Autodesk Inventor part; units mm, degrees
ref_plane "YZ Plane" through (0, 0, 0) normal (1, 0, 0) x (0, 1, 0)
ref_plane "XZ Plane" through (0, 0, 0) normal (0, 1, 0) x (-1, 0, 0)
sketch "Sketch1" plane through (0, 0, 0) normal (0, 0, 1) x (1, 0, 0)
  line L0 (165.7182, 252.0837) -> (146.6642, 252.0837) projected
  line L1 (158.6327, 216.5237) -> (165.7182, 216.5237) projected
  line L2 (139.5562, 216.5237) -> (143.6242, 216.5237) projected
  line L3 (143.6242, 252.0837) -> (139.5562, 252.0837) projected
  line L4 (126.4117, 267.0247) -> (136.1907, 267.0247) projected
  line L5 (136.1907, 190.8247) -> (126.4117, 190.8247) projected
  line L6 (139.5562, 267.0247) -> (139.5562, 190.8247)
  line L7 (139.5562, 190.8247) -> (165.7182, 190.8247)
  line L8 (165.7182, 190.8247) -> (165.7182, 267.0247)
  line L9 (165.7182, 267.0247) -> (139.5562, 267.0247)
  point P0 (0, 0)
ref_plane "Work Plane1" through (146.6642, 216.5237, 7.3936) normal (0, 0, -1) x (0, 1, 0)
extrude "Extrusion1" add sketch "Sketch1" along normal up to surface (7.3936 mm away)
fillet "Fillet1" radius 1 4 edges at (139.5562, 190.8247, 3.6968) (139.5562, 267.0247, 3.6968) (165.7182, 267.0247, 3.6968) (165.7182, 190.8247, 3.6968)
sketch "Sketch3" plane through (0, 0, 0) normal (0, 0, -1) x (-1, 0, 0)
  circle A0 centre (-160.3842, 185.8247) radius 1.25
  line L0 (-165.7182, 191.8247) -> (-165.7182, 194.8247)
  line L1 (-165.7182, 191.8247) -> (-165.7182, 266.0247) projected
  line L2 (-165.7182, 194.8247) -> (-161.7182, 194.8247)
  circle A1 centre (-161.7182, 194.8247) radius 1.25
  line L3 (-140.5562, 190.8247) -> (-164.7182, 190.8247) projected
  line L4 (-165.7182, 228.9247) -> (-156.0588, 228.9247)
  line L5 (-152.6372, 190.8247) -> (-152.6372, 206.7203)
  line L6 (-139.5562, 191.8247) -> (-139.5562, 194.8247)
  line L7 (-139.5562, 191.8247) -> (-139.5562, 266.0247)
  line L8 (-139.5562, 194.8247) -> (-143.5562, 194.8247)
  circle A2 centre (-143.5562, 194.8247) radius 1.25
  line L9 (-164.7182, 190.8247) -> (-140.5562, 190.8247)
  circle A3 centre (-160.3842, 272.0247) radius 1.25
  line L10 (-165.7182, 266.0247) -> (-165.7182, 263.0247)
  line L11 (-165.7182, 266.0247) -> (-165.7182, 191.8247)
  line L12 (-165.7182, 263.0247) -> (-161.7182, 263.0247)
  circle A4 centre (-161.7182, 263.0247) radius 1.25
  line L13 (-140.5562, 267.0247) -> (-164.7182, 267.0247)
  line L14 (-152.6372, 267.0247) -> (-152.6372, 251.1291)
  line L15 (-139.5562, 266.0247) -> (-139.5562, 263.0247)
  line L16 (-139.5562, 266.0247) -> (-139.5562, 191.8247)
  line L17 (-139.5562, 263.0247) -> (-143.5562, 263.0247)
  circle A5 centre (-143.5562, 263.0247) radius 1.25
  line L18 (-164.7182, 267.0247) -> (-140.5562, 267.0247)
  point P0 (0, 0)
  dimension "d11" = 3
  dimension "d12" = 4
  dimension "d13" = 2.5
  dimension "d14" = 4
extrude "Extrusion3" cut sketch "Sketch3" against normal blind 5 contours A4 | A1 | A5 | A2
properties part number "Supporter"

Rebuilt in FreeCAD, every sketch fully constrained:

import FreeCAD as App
import Part
import Sketcher


def edges_at(feature, points):
    """Names of the edges that pass closest to the given points."""
    edges = feature.Shape.Edges
    near = lambda p: min(range(len(edges)), key=lambda i: edges[i].distToShape(Part.Vertex(*p))[0])
    return sorted({f"Edge{near(p) + 1}" for p in points})


def add_polygon(sketch, points):
    """Adds a closed chain of lines whose ends are joined by coincident constraints."""
    first, n = sketch.GeometryCount, len(points)
    for a, b in zip(points, points[1:] + points[:1]):
        sketch.addGeometry(Part.LineSegment(App.Vector(*a, 0), App.Vector(*b, 0)), False)
    for i in range(n):
        sketch.addConstraint(Sketcher.Constraint("Coincident", first + i, 2, first + (i + 1) % n, 1))

doc = App.newDocument("Part")
params = doc.addObject("Spreadsheet::Sheet", "Params")
for row, (alias, value) in enumerate([
    ("sketch1_height", "76.2 mm"),
    ("pad1_length", "7.3936 mm"),
    ("fillet_radius", "1 mm"),
    ("sketch2_diameter", "2.5 mm"),
    ("pocket1_length", "5 mm"),
], start=1):
    params.set(f"A{row}", alias)
    params.set(f"B{row}", "=" + value)
    params.setAlias(f"B{row}", alias)

body = doc.addObject("PartDesign::Body", "Body")

# Sketch on XY plane
sketch1 = body.newObject("Sketcher::SketchObject", "Sketch")
sketch1.AttachmentSupport = (doc.getObject("XY_Plane"), [""])
sketch1.MapMode = "FlatFace"
add_polygon(sketch1, [(165.7182, 267.0247), (139.5562, 267.0247), (139.5562, 190.8247), (165.7182, 190.8247)])  # lines 0-3
sketch1.addConstraint([
    Sketcher.Constraint("Horizontal", 0),
    Sketcher.Constraint("Vertical", 1),
    Sketcher.Constraint("Horizontal", 2),
    Sketcher.Constraint("Vertical", 3),
    Sketcher.Constraint("DistanceY", 1, 2, 1, 1, 76.2),
    Sketcher.Constraint("DistanceX", 0, 2, 0, 1, 26.162),
    Sketcher.Constraint("DistanceX", -1, 1, 0, 2, 139.5562),
    Sketcher.Constraint("DistanceY", -1, 1, 0, 2, 267.0247),
])
sketch1.setExpression("Constraints[8]", "Params.sketch1_height")
pad1 = body.newObject("PartDesign::Pad", "Pad")
pad1.Profile = sketch1
pad1.setExpression("Length", "Params.pad1_length")
doc.recompute()

fillet = body.newObject("PartDesign::Fillet", "Fillet")
fillet.Base = (pad1, edges_at(pad1, [
    (139.556, 190.825, 3.697),
    (139.556, 267.025, 3.697),
    (165.718, 267.025, 3.697),
    (165.718, 190.825, 3.697),
]))
fillet.setExpression("Radius", "Params.fillet_radius")

# Sketch on XY plane
sketch2 = body.newObject("Sketcher::SketchObject", "Sketch001")
sketch2.AttachmentSupport = (doc.getObject("XY_Plane"), [""])
sketch2.MapMode = "FlatFace"
sketch2.addGeometry([
    Part.Circle(App.Vector(161.7182, 263.0247, 0), App.Vector(0, 0, 1), 1.25),
    Part.Circle(App.Vector(161.7182, 194.8247, 0), App.Vector(0, 0, 1), 1.25),
    Part.Circle(App.Vector(143.5562, 263.0247, 0), App.Vector(0, 0, 1), 1.25),
    Part.Circle(App.Vector(143.5562, 194.8247, 0), App.Vector(0, 0, 1), 1.25),
], False)
sketch2.addConstraint([
    Sketcher.Constraint("Equal", 0, 1),
    Sketcher.Constraint("Equal", 1, 2),
    Sketcher.Constraint("Equal", 2, 3),
    Sketcher.Constraint("Horizontal", 0, 3, 2, 3),
    Sketcher.Constraint("Horizontal", 1, 3, 3, 3),
    Sketcher.Constraint("Vertical", 0, 3, 1, 3),
    Sketcher.Constraint("Vertical", 2, 3, 3, 3),
    Sketcher.Constraint("Diameter", 0, 2.5),
    Sketcher.Constraint("DistanceY", 1, 3, 0, 3, 68.2),
    Sketcher.Constraint("DistanceX", 2, 3, 0, 3, 18.162),
    Sketcher.Constraint("DistanceX", -1, 1, 0, 3, 161.7182),
    Sketcher.Constraint("DistanceY", -1, 1, 0, 3, 263.0247),
])
sketch2.setExpression("Constraints[7]", "Params.sketch2_diameter")
pocket1 = body.newObject("PartDesign::Pocket", "Pocket")
pocket1.Profile = sketch2
pocket1.setExpression("Length", "Params.pocket1_length")
pocket1.Reversed = True

doc.recompute()
